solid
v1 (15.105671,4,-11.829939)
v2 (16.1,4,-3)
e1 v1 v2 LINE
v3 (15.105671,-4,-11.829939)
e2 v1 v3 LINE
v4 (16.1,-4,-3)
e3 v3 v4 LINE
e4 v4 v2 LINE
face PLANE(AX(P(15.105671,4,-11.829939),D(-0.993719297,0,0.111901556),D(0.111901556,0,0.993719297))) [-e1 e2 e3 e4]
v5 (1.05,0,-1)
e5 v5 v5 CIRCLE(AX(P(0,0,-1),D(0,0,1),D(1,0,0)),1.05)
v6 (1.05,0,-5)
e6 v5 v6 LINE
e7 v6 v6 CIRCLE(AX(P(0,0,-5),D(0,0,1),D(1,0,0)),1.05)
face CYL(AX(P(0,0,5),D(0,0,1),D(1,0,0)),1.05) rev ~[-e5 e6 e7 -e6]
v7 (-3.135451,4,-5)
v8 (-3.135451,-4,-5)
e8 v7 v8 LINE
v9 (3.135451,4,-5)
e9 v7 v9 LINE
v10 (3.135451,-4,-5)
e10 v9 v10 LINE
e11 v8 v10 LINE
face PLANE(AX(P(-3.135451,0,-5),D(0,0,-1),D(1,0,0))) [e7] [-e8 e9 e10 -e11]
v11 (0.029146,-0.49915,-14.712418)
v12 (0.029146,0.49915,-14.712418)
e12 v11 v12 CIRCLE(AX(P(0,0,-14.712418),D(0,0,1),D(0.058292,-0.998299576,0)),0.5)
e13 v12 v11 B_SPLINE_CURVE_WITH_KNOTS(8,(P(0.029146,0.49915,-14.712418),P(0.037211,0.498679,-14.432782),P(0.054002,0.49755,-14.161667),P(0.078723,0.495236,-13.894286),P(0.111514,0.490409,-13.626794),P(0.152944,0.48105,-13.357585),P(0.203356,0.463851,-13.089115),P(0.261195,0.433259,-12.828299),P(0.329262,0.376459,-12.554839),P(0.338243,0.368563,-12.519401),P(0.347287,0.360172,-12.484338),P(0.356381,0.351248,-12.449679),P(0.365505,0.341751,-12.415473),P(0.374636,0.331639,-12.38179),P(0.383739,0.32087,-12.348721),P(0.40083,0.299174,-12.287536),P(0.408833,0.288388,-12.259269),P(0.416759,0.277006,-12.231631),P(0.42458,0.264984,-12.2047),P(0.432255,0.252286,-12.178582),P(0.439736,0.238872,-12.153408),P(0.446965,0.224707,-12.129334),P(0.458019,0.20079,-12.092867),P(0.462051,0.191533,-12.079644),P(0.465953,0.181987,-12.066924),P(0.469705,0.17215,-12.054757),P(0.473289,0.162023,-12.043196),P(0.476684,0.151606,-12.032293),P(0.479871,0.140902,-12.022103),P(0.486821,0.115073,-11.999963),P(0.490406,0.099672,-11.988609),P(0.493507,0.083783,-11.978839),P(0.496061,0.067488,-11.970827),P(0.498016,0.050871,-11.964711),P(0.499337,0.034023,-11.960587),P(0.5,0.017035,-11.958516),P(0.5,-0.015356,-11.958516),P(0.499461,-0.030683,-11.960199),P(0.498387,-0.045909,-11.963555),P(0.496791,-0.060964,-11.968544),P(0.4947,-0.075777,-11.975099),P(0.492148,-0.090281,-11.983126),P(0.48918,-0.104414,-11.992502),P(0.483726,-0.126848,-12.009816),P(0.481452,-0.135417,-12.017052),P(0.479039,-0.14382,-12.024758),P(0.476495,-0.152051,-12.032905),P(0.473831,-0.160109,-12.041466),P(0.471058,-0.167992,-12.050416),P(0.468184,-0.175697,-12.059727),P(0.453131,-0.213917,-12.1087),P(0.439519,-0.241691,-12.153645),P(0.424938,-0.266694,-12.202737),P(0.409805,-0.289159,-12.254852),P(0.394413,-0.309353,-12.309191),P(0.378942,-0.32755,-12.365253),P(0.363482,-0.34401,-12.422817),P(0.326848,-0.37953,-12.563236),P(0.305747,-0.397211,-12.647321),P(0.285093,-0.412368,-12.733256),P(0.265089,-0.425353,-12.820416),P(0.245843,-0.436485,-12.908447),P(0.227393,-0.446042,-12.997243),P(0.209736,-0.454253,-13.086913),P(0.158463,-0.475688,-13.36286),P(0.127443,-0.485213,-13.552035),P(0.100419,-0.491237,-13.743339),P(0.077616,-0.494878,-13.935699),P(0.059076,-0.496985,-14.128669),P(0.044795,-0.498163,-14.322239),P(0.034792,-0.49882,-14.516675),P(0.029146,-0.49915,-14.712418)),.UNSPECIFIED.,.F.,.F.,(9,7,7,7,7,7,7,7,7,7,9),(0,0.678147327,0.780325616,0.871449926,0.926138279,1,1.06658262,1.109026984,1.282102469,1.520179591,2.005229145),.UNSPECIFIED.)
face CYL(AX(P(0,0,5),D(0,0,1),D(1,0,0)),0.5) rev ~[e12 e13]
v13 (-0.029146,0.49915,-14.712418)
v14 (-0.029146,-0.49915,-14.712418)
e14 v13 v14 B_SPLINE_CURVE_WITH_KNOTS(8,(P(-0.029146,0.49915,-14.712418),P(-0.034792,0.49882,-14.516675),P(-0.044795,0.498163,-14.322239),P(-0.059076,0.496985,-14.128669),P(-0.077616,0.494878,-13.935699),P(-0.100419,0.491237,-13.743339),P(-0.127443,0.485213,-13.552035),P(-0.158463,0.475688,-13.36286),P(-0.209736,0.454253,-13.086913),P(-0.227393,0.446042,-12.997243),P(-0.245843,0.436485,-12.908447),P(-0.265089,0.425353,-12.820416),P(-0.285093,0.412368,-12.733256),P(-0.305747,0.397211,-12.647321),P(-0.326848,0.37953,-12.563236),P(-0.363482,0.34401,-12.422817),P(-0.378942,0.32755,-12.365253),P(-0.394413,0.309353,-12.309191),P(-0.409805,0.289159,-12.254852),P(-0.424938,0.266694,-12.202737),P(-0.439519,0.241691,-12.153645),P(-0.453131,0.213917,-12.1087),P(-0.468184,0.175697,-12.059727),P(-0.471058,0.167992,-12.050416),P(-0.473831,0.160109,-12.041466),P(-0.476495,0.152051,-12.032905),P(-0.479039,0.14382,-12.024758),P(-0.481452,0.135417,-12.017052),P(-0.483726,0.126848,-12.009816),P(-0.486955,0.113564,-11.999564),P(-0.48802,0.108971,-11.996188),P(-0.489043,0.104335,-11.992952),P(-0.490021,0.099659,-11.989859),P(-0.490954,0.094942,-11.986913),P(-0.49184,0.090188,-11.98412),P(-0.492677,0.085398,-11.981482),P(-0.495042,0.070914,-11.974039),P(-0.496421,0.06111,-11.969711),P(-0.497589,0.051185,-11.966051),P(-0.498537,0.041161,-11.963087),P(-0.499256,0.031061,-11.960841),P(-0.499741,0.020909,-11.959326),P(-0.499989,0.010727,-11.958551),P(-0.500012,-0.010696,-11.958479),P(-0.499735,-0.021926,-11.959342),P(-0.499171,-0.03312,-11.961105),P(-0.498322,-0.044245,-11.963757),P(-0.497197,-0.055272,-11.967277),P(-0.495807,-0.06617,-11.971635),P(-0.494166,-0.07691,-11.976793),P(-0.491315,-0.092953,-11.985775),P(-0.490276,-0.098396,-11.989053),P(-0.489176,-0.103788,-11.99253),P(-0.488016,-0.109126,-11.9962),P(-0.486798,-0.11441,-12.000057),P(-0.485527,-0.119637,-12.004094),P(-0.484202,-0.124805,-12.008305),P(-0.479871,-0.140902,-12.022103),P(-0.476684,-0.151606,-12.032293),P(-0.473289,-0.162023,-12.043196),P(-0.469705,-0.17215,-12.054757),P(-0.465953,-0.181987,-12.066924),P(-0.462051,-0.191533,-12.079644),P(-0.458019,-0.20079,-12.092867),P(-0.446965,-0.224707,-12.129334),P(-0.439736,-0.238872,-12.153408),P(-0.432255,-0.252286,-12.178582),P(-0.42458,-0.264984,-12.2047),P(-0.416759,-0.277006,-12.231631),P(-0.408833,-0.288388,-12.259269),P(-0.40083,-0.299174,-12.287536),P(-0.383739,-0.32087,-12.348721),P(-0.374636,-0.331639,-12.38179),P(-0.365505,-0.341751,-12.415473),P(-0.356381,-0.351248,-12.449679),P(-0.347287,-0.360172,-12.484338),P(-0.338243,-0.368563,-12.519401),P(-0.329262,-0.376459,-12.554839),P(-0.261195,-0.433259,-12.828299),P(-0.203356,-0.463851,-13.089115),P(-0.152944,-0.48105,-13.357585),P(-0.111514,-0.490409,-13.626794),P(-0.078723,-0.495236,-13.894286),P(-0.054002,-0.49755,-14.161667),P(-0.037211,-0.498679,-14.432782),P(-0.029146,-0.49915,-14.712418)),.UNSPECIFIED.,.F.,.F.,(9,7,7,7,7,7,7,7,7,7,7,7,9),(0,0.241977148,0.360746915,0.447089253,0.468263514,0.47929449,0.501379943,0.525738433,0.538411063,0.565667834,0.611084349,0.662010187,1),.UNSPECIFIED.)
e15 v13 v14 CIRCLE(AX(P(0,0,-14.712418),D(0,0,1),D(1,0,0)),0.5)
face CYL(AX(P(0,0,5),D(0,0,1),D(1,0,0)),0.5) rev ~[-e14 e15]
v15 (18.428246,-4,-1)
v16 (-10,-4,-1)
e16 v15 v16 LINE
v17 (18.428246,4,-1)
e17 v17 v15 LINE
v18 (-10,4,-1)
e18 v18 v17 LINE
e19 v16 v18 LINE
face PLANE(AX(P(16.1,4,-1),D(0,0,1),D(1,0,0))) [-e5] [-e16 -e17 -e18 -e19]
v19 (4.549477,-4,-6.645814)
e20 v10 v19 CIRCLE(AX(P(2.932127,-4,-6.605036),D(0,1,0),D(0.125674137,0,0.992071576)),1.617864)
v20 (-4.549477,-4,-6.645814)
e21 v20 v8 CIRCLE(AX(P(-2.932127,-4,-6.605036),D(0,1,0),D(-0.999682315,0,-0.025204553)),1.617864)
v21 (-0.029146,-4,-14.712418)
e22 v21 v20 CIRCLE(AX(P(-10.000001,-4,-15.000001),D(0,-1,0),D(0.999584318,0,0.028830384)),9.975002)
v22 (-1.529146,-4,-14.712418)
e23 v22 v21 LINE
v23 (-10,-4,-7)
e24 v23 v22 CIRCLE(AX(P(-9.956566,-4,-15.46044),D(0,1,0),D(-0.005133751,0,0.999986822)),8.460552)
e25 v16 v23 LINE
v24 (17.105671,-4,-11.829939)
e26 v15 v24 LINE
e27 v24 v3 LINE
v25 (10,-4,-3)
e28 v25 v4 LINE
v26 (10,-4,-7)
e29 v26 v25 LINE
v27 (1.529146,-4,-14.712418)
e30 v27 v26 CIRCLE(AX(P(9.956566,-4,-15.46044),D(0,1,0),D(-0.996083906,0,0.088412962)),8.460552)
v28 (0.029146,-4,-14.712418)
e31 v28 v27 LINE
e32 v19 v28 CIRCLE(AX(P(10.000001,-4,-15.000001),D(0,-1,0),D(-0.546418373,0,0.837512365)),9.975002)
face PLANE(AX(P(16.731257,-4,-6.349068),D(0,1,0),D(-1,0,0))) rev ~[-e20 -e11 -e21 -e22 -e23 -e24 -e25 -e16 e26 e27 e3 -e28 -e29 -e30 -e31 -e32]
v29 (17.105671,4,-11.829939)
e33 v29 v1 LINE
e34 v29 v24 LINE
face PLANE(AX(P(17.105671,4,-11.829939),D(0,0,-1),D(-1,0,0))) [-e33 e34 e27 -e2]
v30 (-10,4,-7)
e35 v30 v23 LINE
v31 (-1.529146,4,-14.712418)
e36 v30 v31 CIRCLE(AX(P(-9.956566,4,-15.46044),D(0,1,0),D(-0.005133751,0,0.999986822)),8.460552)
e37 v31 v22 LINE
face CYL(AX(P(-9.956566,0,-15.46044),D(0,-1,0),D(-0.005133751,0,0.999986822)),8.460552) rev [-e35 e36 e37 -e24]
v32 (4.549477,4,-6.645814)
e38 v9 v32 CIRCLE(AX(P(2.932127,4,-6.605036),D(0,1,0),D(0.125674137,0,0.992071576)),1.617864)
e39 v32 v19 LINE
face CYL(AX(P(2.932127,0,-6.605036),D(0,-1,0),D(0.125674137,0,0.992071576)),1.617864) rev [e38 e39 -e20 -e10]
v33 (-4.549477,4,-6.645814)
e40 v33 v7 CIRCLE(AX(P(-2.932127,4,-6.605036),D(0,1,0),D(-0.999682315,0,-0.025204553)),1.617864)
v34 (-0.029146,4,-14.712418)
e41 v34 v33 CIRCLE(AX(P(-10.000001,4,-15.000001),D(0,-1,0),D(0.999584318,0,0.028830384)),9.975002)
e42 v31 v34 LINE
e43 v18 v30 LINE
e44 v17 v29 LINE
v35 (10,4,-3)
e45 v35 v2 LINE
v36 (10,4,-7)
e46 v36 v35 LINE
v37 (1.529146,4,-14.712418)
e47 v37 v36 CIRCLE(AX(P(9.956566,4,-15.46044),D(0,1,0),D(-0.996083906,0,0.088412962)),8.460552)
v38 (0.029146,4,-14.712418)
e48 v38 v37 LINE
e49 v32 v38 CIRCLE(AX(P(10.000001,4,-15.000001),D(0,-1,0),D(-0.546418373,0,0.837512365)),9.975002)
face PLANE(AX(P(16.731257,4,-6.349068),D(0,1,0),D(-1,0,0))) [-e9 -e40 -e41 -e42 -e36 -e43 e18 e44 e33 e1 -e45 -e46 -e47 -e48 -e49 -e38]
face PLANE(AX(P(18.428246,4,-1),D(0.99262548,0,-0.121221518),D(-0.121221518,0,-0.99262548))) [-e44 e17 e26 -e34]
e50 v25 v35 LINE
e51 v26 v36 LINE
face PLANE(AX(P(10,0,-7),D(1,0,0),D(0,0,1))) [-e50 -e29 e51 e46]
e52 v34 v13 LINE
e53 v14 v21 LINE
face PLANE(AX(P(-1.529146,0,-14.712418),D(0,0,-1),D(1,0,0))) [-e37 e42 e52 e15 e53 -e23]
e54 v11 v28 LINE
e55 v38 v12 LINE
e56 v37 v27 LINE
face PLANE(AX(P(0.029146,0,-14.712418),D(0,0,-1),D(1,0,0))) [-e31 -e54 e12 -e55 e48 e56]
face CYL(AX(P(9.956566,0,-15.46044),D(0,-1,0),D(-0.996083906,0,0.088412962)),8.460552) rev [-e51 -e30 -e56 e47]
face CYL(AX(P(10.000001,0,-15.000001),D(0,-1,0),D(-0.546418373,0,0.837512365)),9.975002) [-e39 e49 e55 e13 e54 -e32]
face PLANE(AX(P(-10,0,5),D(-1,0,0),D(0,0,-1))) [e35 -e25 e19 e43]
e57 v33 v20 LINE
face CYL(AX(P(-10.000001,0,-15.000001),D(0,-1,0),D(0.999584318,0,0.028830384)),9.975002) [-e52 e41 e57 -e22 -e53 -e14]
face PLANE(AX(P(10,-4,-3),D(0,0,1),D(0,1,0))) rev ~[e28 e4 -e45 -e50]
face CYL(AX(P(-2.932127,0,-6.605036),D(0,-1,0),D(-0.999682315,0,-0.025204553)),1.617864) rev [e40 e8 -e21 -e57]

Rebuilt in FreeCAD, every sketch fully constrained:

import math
import FreeCAD as App
import Part
import Sketcher
Q = App.Units.Quantity

doc = App.newDocument("Part")
params = doc.addObject("Spreadsheet::Sheet", "Params")
for row, (alias, value) in enumerate([
    ("sketch1_width", "20 mm"),
    ("sketch1_height", "12 mm"),
    ("sketch1_height2", "12 mm"),
    ("sketch1_width2", "1.5 mm"),
    ("sketch1_width3", "1.5 mm"),
    ("pad1_length", "8 mm"),
    ("sketch2_diameter", "1 mm"),
    ("pocket1_length", "25 mm"),
    ("sketch3_diameter", "1 mm"),
    ("sketch3_diameter2", "2.1 mm"),
    ("pocket2_length", "10 mm"),
    ("sketch4_diameter", "2.1 mm"),
    ("sketch4_width", "20 mm"),
    ("sketch4_height", "8 mm"),
    ("pocket3_length", "6 mm"),
    ("sketch5_width", "8 mm"),
    ("sketch5_height", "2 mm"),
    ("pad2_length", "6.1 mm"),
    ("sketch6_width", "2 mm"),
    ("pad3_length", "8 mm"),
], start=1):
    params.set(f"A{row}", alias)
    params.set(f"B{row}", "=" + value)
    params.setAlias(f"B{row}", alias)

body = doc.addObject("PartDesign::Body", "Body")

sketch1 = doc.addObject("Sketcher::SketchObject", "Sketch")
body.addObject(sketch1)
sketch1.AttachmentSupport = (doc.XZ_Plane, [""])
sketch1.MapMode = "FlatFace"
sketch1.addGeometry([
    Part.LineSegment(App.Vector(-10, 5, 0), App.Vector(-10, -7, 0)),
    Part.ArcOfCircle(Part.Circle(App.Vector(-9.956566, -15.46044, 0), App.Vector(0, 0, 1), 8.460552), math.radians(5.072313), math.radians(90.294144)),
    Part.LineSegment(App.Vector(-1.529146, -14.712418, 0), App.Vector(-0.029146, -14.712418, 0)),
    Part.ArcOfCircle(Part.Circle(App.Vector(-10.000001, -15.000001, 0), App.Vector(0, 0, 1), 9.975002), math.radians(1.652088), math.radians(56.878356)),
    Part.ArcOfCircle(Part.Circle(App.Vector(-2.932127, -6.605036, 0), App.Vector(0, 0, 1), 1.617864), math.radians(97.219688), math.radians(181.444267)),
    Part.LineSegment(App.Vector(-3.135451, -5, 0), App.Vector(3.135451, -5, 0)),
    Part.ArcOfCircle(Part.Circle(App.Vector(2.932127, -6.605036, 0), App.Vector(0, 0, 1), 1.617864), math.radians(-1.444267), math.radians(82.780312)),
    Part.ArcOfCircle(Part.Circle(App.Vector(10.000001, -15.000001, 0), App.Vector(0, 0, 1), 9.975002), math.radians(123.121644), math.radians(178.347912)),
    Part.LineSegment(App.Vector(0.029146, -14.712418, 0), App.Vector(1.529146, -14.712418, 0)),
    Part.ArcOfCircle(Part.Circle(App.Vector(9.956566, -15.46044, 0), App.Vector(0, 0, 1), 8.460552), math.radians(89.705856), math.radians(174.927687)),
    Part.LineSegment(App.Vector(10, -7, 0), App.Vector(10, 5, 0)),
    Part.LineSegment(App.Vector(10, 5, 0), App.Vector(-10, 5, 0)),
], False)
sketch1.addConstraint([
    Sketcher.Constraint("Coincident", 0, 2, 1, 2),
    Sketcher.Constraint("Coincident", 1, 1, 2, 1),
    Sketcher.Constraint("Coincident", 2, 2, 3, 1),
    Sketcher.Constraint("Coincident", 3, 2, 4, 2),
    Sketcher.Constraint("Coincident", 4, 1, 5, 1),
    Sketcher.Constraint("Coincident", 5, 2, 6, 2),
    Sketcher.Constraint("Coincident", 6, 1, 7, 1),
    Sketcher.Constraint("Coincident", 7, 2, 8, 1),
    Sketcher.Constraint("Coincident", 8, 2, 9, 2),
    Sketcher.Constraint("Coincident", 9, 1, 10, 1),
    Sketcher.Constraint("Coincident", 10, 2, 11, 1),
    Sketcher.Constraint("Coincident", 11, 2, 0, 1),
    Sketcher.Constraint("Vertical", 0),
    Sketcher.Constraint("Horizontal", 2),
    Sketcher.Constraint("Horizontal", 5),
    Sketcher.Constraint("Horizontal", 8),
    Sketcher.Constraint("Vertical", 10),
    Sketcher.Constraint("Horizontal", 11),
    Sketcher.Constraint("DistanceX", 11, 2, 11, 1, Q("20 mm")),
    Sketcher.Constraint("DistanceY", 0, 2, 0, 1, Q("12 mm")),
    Sketcher.Constraint("DistanceY", 10, 1, 10, 2, Q("12 mm")),
    Sketcher.Constraint("DistanceX", 2, 1, 2, 2, Q("1.5 mm")),
    Sketcher.Constraint("DistanceX", 8, 1, 8, 2, Q("1.5 mm")),
    Sketcher.Constraint("DistanceX", 3, 3, -1, 1, Q("10.000001 mm")),
    Sketcher.Constraint("DistanceY", 3, 3, -1, 1, Q("15.000001 mm")),
    Sketcher.Constraint("DistanceX", -1, 1, 7, 3, Q("10.000001 mm")),
    Sketcher.Constraint("DistanceY", 7, 3, -1, 1, Q("15.000001 mm")),
    Sketcher.Constraint("DistanceX", 0, 2, -1, 1, Q("10 mm")),
    Sketcher.Constraint("DistanceY", 0, 2, -1, 1, Q("7 mm")),
    Sketcher.Constraint("DistanceY", 4, 1, -1, 1, Q("5 mm")),
    Sketcher.Constraint("Radius", 3, Q("9.975002 mm")),
    Sketcher.Constraint("Radius", 7, Q("9.975002 mm")),
    Sketcher.Constraint("Radius", 1, Q("8.460552 mm")),
    Sketcher.Constraint("Radius", 9, Q("8.460552 mm")),
    Sketcher.Constraint("Radius", 4, Q("1.617864 mm")),
    Sketcher.Constraint("Radius", 6, Q("1.617864 mm")),
    Sketcher.Constraint("DistanceX", 5, 1, 5, 2, Q("6.270902 mm")),
    Sketcher.Constraint("DistanceX", 4, 1, -1, 1, Q("3.135451 mm")),
    Sketcher.Constraint("DistanceX", 1, 3, 4, 3, Q("7.024438 mm")),
    Sketcher.Constraint("DistanceX", 3, 3, 6, 3, Q("12.932128 mm")),
    Sketcher.Constraint("DistanceX", 4, 3, 7, 3, Q("12.932128 mm")),
    Sketcher.Constraint("DistanceX", 6, 3, 9, 3, Q("7.024438 mm")),
])
sketch1.setExpression("Constraints[18]", "Params.sketch1_width")
sketch1.setExpression("Constraints[19]", "Params.sketch1_height")
sketch1.setExpression("Constraints[20]", "Params.sketch1_height2")
sketch1.setExpression("Constraints[21]", "Params.sketch1_width2")
sketch1.setExpression("Constraints[22]", "Params.sketch1_width3")
pad1 = doc.addObject("PartDesign::Pad", "Pad")
body.addObject(pad1)
pad1.Profile = sketch1
pad1.setExpression("Length", "Params.pad1_length")
pad1.Midplane = True

sketch2 = doc.addObject("Sketcher::SketchObject", "Sketch001")
body.addObject(sketch2)
sketch2.AttachmentSupport = (doc.XY_Plane, [""])
sketch2.MapMode = "FlatFace"
sketch2.AttachmentOffset = App.Placement(App.Vector(0, 0, 5), App.Rotation())
sketch2.addGeometry(Part.Circle(App.Vector(0, 0, 0), App.Vector(0, 0, 1), 0.5), False)
sketch2.addConstraint([
    Sketcher.Constraint("Coincident", 0, 3, -1, 1),
    Sketcher.Constraint("Diameter", 0, Q("1 mm")),
])
sketch2.setExpression("Constraints[1]", "Params.sketch2_diameter")
pocket1 = doc.addObject("PartDesign::Pocket", "Pocket")
body.addObject(pocket1)
pocket1.Profile = sketch2
pocket1.setExpression("Length", "Params.pocket1_length")

sketch3 = doc.addObject("Sketcher::SketchObject", "Sketch002")
body.addObject(sketch3)
sketch3.AttachmentSupport = (doc.XY_Plane, [""])
sketch3.MapMode = "FlatFace"
sketch3.AttachmentOffset = App.Placement(App.Vector(0, 0, 5), App.Rotation())
sketch3.addGeometry([
    Part.Circle(App.Vector(0, 0, 0), App.Vector(0, 0, 1), 1.1),
    Part.Circle(App.Vector(0, 0, 0), App.Vector(0, 0, 1), 0.5),
], False)
sketch3.addConstraint([
    Sketcher.Constraint("Coincident", 0, 3, -1, 1),
    Sketcher.Constraint("Coincident", 1, 3, -1, 1),
    Sketcher.Constraint("Diameter", 1, Q("1 mm")),
    Sketcher.Constraint("Diameter", 0, Q("2.1 mm")),
])
sketch3.setExpression("Constraints[2]", "Params.sketch3_diameter")
sketch3.setExpression("Constraints[3]", "Params.sketch3_diameter2")
pocket2 = doc.addObject("PartDesign::Pocket", "Pocket001")
body.addObject(pocket2)
pocket2.Profile = sketch3
pocket2.setExpression("Length", "Params.pocket2_length")

sketch4 = doc.addObject("Sketcher::SketchObject", "Sketch003")
body.addObject(sketch4)
sketch4.AttachmentSupport = (doc.XY_Plane, [""])
sketch4.MapMode = "FlatFace"
sketch4.AttachmentOffset = App.Placement(App.Vector(0, 0, 5), App.Rotation())
sketch4.addGeometry([
    Part.LineSegment(App.Vector(-10, 4, 0), App.Vector(-10, -4, 0)),
    Part.LineSegment(App.Vector(-10, -4, 0), App.Vector(10, -4, 0)),
    Part.LineSegment(App.Vector(10, -4, 0), App.Vector(10, 4, 0)),
    Part.LineSegment(App.Vector(10, 4, 0), App.Vector(-10, 4, 0)),
    Part.Circle(App.Vector(0, 0, 0), App.Vector(0, 0, 1), 1.1),
], False)
sketch4.addConstraint([
    Sketcher.Constraint("Coincident", 0, 2, 1, 1),
    Sketcher.Constraint("Coincident", 1, 2, 2, 1),
    Sketcher.Constraint("Coincident", 2, 2, 3, 1),
    Sketcher.Constraint("Coincident", 3, 2, 0, 1),
    Sketcher.Constraint("Vertical", 0),
    Sketcher.Constraint("Horizontal", 1),
    Sketcher.Constraint("Vertical", 2),
    Sketcher.Constraint("Horizontal", 3),
    Sketcher.Constraint("Coincident", 4, 3, -1, 1),
    Sketcher.Constraint("Symmetric", 0, 2, 2, 2, -1, 1),
    Sketcher.Constraint("Diameter", 4, Q("2.1 mm")),
    Sketcher.Constraint("DistanceX", 1, 1, 1, 2, Q("20 mm")),
    Sketcher.Constraint("DistanceY", 0, 2, 0, 1, Q("8 mm")),
])
sketch4.setExpression("Constraints[10]", "Params.sketch4_diameter")
sketch4.setExpression("Constraints[11]", "Params.sketch4_width")
sketch4.setExpression("Constraints[12]", "Params.sketch4_height")
pocket3 = doc.addObject("PartDesign::Pocket", "Pocket002")
body.addObject(pocket3)
pocket3.Profile = sketch4
pocket3.setExpression("Length", "Params.pocket3_length")

sketch5 = doc.addObject("Sketcher::SketchObject", "Sketch004")
body.addObject(sketch5)
sketch5.AttachmentSupport = (doc.YZ_Plane, [""])
sketch5.MapMode = "FlatFace"
sketch5.AttachmentOffset = App.Placement(App.Vector(0, 0, 10), App.Rotation())
sketch5.addGeometry([
    Part.LineSegment(App.Vector(-4, -1, 0), App.Vector(-4, -3, 0)),
    Part.LineSegment(App.Vector(-4, -3, 0), App.Vector(4, -3, 0)),
    Part.LineSegment(App.Vector(4, -3, 0), App.Vector(4, -1, 0)),
    Part.LineSegment(App.Vector(4, -1, 0), App.Vector(-4, -1, 0)),
], False)
sketch5.addConstraint([
    Sketcher.Constraint("Coincident", 0, 2, 1, 1),
    Sketcher.Constraint("Coincident", 1, 2, 2, 1),
    Sketcher.Constraint("Coincident", 2, 2, 3, 1),
    Sketcher.Constraint("Coincident", 3, 2, 0, 1),
    Sketcher.Constraint("Vertical", 0),
    Sketcher.Constraint("Horizontal", 1),
    Sketcher.Constraint("Vertical", 2),
    Sketcher.Constraint("Horizontal", 3),
    Sketcher.Constraint("DistanceX", 1, 1, 1, 2, Q("8 mm")),
    Sketcher.Constraint("DistanceY", 0, 2, 0, 1, Q("2 mm")),
    Sketcher.Constraint("DistanceX", 0, 2, -1, 1, Q("4 mm")),
    Sketcher.Constraint("DistanceY", 0, 2, -1, 1, Q("3 mm")),
])
sketch5.setExpression("Constraints[8]", "Params.sketch5_width")
sketch5.setExpression("Constraints[9]", "Params.sketch5_height")
pad2 = doc.addObject("PartDesign::Pad", "Pad001")
body.addObject(pad2)
pad2.Profile = sketch5
pad2.setExpression("Length", "Params.pad2_length")

sketch6 = doc.addObject("Sketcher::SketchObject", "Sketch005")
body.addObject(sketch6)
sketch6.AttachmentSupport = (doc.XZ_Plane, [""])
sketch6.MapMode = "FlatFace"
sketch6.AttachmentOffset = App.Placement(App.Vector(0, 0, -4), App.Rotation())
sketch6.addGeometry([
    Part.LineSegment(App.Vector(15.1, -11.8, 0), App.Vector(16.1, -3, 0)),
    Part.LineSegment(App.Vector(16.1, -3, 0), App.Vector(16.1, -1, 0)),
    Part.LineSegment(App.Vector(16.1, -1, 0), App.Vector(18.4, -1, 0)),
    Part.LineSegment(App.Vector(18.4, -1, 0), App.Vector(17.1, -11.8, 0)),
    Part.LineSegment(App.Vector(17.1, -11.8, 0), App.Vector(15.1, -11.8, 0)),
], False)
sketch6.addConstraint([
    Sketcher.Constraint("Coincident", 0, 2, 1, 1),
    Sketcher.Constraint("Coincident", 1, 2, 2, 1),
    Sketcher.Constraint("Coincident", 2, 2, 3, 1),
    Sketcher.Constraint("Coincident", 3, 2, 4, 1),
    Sketcher.Constraint("Coincident", 4, 2, 0, 1),
    Sketcher.Constraint("Vertical", 1),
    Sketcher.Constraint("Horizontal", 2),
    Sketcher.Constraint("Horizontal", 4),
    Sketcher.Constraint("Equal", 4, 1),
    Sketcher.Constraint("DistanceX", 4, 2, 4, 1, Q("2 mm")),
    Sketcher.Constraint("DistanceY", 0, 2, -1, 1, Q("3 mm")),
    Sketcher.Constraint("DistanceX", -1, 1, 0, 2, Q("16.1 mm")),
    Sketcher.Constraint("DistanceX", 2, 1, 2, 2, Q("2.328246 mm")),
    Sketcher.Constraint("DistanceX", -1, 1, 3, 2, Q("17.105671 mm")),
    Sketcher.Constraint("DistanceY", 3, 2, -1, 1, Q("11.829939 mm")),
])
sketch6.setExpression("Constraints[9]", "Params.sketch6_width")
pad3 = doc.addObject("PartDesign::Pad", "Pad002")
body.addObject(pad3)
pad3.Profile = sketch6
pad3.setExpression("Length", "Params.pad3_length")

doc.recompute()
